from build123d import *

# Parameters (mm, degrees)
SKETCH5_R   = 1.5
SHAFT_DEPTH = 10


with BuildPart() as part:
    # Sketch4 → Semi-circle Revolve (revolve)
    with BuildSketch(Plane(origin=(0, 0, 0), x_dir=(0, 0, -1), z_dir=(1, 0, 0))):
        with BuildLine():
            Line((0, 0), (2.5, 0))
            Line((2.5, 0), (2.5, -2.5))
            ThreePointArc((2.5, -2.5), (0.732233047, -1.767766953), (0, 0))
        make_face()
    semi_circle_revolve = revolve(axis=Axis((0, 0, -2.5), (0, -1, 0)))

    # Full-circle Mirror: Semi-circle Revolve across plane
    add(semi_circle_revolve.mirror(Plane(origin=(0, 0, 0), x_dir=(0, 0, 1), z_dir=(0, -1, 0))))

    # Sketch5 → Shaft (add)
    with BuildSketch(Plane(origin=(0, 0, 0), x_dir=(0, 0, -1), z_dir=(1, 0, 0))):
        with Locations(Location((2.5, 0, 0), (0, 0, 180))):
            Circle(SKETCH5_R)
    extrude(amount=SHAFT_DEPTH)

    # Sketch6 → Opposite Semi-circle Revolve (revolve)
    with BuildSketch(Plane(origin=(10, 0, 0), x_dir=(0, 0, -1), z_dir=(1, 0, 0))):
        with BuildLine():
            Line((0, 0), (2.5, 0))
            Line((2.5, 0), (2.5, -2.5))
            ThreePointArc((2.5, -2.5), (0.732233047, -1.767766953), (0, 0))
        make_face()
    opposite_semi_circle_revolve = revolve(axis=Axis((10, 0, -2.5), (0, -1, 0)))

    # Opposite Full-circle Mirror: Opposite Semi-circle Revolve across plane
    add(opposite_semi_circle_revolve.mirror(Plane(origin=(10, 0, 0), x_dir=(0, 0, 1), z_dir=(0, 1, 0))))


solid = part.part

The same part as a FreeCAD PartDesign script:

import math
import FreeCAD as App
import Part
import Sketcher
from FreeCAD import Vector

doc = App.newDocument("Part")
body = doc.addObject("PartDesign::Body", "Body")

sketch1 = doc.addObject("Sketcher::SketchObject", "Sketch")
body.addObject(sketch1)
sketch1.AttachmentSupport = (doc.YZ_Plane, [""])
sketch1.MapMode = "FlatFace"
sketch1.addGeometry(Part.LineSegment(Vector(0, -2.5, 0), Vector(0, 0, 0)), False)
sketch1.addGeometry(Part.ArcOfCircle(Part.Circle(Vector(0, -2.5, 0), Vector(0, 0, 1), 2.5), math.radians(90), math.radians(180)), False)
sketch1.addGeometry(Part.LineSegment(Vector(-2.5, -2.5, 0), Vector(0, -2.5, 0)), False)
sketch1.addGeometry(Part.LineSegment(Vector(0, -2.5, 0), Vector(-2.5, -2.5, 0)), True)
sketch1.addConstraint(Sketcher.Constraint("Coincident", 0, 2, 1, 1))
sketch1.addConstraint(Sketcher.Constraint("Coincident", 1, 2, 2, 1))
sketch1.addConstraint(Sketcher.Constraint("Coincident", 2, 2, 0, 1))
sketch1.addConstraint(Sketcher.Constraint("Vertical", 0))
sketch1.addConstraint(Sketcher.Constraint("Horizontal", 2))
sketch1.addConstraint(Sketcher.Constraint("Horizontal", 3))
sketch1.addConstraint(Sketcher.Constraint("Coincident", 0, 2, -1, 1))
sketch1.addConstraint(Sketcher.Constraint("Coincident", 2, 2, 1, 3))
sketch1.addConstraint(Sketcher.Constraint("Coincident", 3, 1, 1, 3))
sketch1.addConstraint(Sketcher.Constraint("Equal", 2, 3))
sketch1.addConstraint(Sketcher.Constraint("Radius", 1, 2.5))
revolution = doc.addObject("PartDesign::Revolution", "Revolution")
body.addObject(revolution)
revolution.Profile = sketch1
revolution.ReferenceAxis = (sketch1, ["Axis0"])
revolution.Angle = 360
doc.recompute()

mirrored = doc.addObject("PartDesign::Mirrored", "Mirrored")
body.addObject(mirrored)
mirrored.Originals = [revolution]
mirrored.MirrorPlane = (doc.XZ_Plane, [""])
body.Tip = mirrored

sketch2 = doc.addObject("Sketcher::SketchObject", "Sketch001")
body.addObject(sketch2)
sketch2.AttachmentSupport = (doc.YZ_Plane, [""])
sketch2.MapMode = "FlatFace"
sketch2.addGeometry(Part.Circle(Vector(0, -2.5, 0), Vector(0, 0, 1), 1.5), False)
sketch2.addConstraint(Sketcher.Constraint("PointOnObject", 0, 3, -2))
sketch2.addConstraint(Sketcher.Constraint("Diameter", 0, 3.0))
sketch2.addConstraint(Sketcher.Constraint("DistanceY", 0, 3, -1, 1, 2.5))
pad1 = doc.addObject("PartDesign::Pad", "Pad")
body.addObject(pad1)
pad1.Profile = sketch2
pad1.Length = 10

sketch3 = doc.addObject("Sketcher::SketchObject", "Sketch002")
body.addObject(sketch3)
sketch3.AttachmentSupport = (doc.YZ_Plane, [""])
sketch3.MapMode = "FlatFace"
sketch3.AttachmentOffset = App.Placement(Vector(0, 0, 10), App.Rotation())
sketch3.addGeometry(Part.LineSegment(Vector(0, -2.5, 0), Vector(0, 0, 0)), False)
sketch3.addGeometry(Part.ArcOfCircle(Part.Circle(Vector(0, -2.5, 0), Vector(0, 0, 1), 2.5), math.radians(90), math.radians(180)), False)
sketch3.addGeometry(Part.LineSegment(Vector(-2.5, -2.5, 0), Vector(0, -2.5, 0)), False)
sketch3.addGeometry(Part.LineSegment(Vector(0, -2.5, 0), Vector(-2.5, -2.5, 0)), True)
sketch3.addConstraint(Sketcher.Constraint("Coincident", 0, 2, 1, 1))
sketch3.addConstraint(Sketcher.Constraint("Coincident", 1, 2, 2, 1))
sketch3.addConstraint(Sketcher.Constraint("Coincident", 2, 2, 0, 1))
sketch3.addConstraint(Sketcher.Constraint("Vertical", 0))
sketch3.addConstraint(Sketcher.Constraint("Horizontal", 2))
sketch3.addConstraint(Sketcher.Constraint("Horizontal", 3))
sketch3.addConstraint(Sketcher.Constraint("Coincident", 0, 2, -1, 1))
sketch3.addConstraint(Sketcher.Constraint("Coincident", 2, 2, 1, 3))
sketch3.addConstraint(Sketcher.Constraint("Coincident", 3, 1, 1, 3))
sketch3.addConstraint(Sketcher.Constraint("Equal", 2, 3))
sketch3.addConstraint(Sketcher.Constraint("Radius", 1, 2.5))
revolution2 = doc.addObject("PartDesign::Revolution", "Revolution001")
body.addObject(revolution2)
revolution2.Profile = sketch3
revolution2.ReferenceAxis = (sketch3, ["Axis0"])
revolution2.Angle = 360
doc.recompute()

mirrored2 = doc.addObject("PartDesign::Mirrored", "Mirrored001")
body.addObject(mirrored2)
mirrored2.Originals = [revolution2]
mirrored2.MirrorPlane = (doc.XZ_Plane, [""])
body.Tip = mirrored2

doc.recompute()
